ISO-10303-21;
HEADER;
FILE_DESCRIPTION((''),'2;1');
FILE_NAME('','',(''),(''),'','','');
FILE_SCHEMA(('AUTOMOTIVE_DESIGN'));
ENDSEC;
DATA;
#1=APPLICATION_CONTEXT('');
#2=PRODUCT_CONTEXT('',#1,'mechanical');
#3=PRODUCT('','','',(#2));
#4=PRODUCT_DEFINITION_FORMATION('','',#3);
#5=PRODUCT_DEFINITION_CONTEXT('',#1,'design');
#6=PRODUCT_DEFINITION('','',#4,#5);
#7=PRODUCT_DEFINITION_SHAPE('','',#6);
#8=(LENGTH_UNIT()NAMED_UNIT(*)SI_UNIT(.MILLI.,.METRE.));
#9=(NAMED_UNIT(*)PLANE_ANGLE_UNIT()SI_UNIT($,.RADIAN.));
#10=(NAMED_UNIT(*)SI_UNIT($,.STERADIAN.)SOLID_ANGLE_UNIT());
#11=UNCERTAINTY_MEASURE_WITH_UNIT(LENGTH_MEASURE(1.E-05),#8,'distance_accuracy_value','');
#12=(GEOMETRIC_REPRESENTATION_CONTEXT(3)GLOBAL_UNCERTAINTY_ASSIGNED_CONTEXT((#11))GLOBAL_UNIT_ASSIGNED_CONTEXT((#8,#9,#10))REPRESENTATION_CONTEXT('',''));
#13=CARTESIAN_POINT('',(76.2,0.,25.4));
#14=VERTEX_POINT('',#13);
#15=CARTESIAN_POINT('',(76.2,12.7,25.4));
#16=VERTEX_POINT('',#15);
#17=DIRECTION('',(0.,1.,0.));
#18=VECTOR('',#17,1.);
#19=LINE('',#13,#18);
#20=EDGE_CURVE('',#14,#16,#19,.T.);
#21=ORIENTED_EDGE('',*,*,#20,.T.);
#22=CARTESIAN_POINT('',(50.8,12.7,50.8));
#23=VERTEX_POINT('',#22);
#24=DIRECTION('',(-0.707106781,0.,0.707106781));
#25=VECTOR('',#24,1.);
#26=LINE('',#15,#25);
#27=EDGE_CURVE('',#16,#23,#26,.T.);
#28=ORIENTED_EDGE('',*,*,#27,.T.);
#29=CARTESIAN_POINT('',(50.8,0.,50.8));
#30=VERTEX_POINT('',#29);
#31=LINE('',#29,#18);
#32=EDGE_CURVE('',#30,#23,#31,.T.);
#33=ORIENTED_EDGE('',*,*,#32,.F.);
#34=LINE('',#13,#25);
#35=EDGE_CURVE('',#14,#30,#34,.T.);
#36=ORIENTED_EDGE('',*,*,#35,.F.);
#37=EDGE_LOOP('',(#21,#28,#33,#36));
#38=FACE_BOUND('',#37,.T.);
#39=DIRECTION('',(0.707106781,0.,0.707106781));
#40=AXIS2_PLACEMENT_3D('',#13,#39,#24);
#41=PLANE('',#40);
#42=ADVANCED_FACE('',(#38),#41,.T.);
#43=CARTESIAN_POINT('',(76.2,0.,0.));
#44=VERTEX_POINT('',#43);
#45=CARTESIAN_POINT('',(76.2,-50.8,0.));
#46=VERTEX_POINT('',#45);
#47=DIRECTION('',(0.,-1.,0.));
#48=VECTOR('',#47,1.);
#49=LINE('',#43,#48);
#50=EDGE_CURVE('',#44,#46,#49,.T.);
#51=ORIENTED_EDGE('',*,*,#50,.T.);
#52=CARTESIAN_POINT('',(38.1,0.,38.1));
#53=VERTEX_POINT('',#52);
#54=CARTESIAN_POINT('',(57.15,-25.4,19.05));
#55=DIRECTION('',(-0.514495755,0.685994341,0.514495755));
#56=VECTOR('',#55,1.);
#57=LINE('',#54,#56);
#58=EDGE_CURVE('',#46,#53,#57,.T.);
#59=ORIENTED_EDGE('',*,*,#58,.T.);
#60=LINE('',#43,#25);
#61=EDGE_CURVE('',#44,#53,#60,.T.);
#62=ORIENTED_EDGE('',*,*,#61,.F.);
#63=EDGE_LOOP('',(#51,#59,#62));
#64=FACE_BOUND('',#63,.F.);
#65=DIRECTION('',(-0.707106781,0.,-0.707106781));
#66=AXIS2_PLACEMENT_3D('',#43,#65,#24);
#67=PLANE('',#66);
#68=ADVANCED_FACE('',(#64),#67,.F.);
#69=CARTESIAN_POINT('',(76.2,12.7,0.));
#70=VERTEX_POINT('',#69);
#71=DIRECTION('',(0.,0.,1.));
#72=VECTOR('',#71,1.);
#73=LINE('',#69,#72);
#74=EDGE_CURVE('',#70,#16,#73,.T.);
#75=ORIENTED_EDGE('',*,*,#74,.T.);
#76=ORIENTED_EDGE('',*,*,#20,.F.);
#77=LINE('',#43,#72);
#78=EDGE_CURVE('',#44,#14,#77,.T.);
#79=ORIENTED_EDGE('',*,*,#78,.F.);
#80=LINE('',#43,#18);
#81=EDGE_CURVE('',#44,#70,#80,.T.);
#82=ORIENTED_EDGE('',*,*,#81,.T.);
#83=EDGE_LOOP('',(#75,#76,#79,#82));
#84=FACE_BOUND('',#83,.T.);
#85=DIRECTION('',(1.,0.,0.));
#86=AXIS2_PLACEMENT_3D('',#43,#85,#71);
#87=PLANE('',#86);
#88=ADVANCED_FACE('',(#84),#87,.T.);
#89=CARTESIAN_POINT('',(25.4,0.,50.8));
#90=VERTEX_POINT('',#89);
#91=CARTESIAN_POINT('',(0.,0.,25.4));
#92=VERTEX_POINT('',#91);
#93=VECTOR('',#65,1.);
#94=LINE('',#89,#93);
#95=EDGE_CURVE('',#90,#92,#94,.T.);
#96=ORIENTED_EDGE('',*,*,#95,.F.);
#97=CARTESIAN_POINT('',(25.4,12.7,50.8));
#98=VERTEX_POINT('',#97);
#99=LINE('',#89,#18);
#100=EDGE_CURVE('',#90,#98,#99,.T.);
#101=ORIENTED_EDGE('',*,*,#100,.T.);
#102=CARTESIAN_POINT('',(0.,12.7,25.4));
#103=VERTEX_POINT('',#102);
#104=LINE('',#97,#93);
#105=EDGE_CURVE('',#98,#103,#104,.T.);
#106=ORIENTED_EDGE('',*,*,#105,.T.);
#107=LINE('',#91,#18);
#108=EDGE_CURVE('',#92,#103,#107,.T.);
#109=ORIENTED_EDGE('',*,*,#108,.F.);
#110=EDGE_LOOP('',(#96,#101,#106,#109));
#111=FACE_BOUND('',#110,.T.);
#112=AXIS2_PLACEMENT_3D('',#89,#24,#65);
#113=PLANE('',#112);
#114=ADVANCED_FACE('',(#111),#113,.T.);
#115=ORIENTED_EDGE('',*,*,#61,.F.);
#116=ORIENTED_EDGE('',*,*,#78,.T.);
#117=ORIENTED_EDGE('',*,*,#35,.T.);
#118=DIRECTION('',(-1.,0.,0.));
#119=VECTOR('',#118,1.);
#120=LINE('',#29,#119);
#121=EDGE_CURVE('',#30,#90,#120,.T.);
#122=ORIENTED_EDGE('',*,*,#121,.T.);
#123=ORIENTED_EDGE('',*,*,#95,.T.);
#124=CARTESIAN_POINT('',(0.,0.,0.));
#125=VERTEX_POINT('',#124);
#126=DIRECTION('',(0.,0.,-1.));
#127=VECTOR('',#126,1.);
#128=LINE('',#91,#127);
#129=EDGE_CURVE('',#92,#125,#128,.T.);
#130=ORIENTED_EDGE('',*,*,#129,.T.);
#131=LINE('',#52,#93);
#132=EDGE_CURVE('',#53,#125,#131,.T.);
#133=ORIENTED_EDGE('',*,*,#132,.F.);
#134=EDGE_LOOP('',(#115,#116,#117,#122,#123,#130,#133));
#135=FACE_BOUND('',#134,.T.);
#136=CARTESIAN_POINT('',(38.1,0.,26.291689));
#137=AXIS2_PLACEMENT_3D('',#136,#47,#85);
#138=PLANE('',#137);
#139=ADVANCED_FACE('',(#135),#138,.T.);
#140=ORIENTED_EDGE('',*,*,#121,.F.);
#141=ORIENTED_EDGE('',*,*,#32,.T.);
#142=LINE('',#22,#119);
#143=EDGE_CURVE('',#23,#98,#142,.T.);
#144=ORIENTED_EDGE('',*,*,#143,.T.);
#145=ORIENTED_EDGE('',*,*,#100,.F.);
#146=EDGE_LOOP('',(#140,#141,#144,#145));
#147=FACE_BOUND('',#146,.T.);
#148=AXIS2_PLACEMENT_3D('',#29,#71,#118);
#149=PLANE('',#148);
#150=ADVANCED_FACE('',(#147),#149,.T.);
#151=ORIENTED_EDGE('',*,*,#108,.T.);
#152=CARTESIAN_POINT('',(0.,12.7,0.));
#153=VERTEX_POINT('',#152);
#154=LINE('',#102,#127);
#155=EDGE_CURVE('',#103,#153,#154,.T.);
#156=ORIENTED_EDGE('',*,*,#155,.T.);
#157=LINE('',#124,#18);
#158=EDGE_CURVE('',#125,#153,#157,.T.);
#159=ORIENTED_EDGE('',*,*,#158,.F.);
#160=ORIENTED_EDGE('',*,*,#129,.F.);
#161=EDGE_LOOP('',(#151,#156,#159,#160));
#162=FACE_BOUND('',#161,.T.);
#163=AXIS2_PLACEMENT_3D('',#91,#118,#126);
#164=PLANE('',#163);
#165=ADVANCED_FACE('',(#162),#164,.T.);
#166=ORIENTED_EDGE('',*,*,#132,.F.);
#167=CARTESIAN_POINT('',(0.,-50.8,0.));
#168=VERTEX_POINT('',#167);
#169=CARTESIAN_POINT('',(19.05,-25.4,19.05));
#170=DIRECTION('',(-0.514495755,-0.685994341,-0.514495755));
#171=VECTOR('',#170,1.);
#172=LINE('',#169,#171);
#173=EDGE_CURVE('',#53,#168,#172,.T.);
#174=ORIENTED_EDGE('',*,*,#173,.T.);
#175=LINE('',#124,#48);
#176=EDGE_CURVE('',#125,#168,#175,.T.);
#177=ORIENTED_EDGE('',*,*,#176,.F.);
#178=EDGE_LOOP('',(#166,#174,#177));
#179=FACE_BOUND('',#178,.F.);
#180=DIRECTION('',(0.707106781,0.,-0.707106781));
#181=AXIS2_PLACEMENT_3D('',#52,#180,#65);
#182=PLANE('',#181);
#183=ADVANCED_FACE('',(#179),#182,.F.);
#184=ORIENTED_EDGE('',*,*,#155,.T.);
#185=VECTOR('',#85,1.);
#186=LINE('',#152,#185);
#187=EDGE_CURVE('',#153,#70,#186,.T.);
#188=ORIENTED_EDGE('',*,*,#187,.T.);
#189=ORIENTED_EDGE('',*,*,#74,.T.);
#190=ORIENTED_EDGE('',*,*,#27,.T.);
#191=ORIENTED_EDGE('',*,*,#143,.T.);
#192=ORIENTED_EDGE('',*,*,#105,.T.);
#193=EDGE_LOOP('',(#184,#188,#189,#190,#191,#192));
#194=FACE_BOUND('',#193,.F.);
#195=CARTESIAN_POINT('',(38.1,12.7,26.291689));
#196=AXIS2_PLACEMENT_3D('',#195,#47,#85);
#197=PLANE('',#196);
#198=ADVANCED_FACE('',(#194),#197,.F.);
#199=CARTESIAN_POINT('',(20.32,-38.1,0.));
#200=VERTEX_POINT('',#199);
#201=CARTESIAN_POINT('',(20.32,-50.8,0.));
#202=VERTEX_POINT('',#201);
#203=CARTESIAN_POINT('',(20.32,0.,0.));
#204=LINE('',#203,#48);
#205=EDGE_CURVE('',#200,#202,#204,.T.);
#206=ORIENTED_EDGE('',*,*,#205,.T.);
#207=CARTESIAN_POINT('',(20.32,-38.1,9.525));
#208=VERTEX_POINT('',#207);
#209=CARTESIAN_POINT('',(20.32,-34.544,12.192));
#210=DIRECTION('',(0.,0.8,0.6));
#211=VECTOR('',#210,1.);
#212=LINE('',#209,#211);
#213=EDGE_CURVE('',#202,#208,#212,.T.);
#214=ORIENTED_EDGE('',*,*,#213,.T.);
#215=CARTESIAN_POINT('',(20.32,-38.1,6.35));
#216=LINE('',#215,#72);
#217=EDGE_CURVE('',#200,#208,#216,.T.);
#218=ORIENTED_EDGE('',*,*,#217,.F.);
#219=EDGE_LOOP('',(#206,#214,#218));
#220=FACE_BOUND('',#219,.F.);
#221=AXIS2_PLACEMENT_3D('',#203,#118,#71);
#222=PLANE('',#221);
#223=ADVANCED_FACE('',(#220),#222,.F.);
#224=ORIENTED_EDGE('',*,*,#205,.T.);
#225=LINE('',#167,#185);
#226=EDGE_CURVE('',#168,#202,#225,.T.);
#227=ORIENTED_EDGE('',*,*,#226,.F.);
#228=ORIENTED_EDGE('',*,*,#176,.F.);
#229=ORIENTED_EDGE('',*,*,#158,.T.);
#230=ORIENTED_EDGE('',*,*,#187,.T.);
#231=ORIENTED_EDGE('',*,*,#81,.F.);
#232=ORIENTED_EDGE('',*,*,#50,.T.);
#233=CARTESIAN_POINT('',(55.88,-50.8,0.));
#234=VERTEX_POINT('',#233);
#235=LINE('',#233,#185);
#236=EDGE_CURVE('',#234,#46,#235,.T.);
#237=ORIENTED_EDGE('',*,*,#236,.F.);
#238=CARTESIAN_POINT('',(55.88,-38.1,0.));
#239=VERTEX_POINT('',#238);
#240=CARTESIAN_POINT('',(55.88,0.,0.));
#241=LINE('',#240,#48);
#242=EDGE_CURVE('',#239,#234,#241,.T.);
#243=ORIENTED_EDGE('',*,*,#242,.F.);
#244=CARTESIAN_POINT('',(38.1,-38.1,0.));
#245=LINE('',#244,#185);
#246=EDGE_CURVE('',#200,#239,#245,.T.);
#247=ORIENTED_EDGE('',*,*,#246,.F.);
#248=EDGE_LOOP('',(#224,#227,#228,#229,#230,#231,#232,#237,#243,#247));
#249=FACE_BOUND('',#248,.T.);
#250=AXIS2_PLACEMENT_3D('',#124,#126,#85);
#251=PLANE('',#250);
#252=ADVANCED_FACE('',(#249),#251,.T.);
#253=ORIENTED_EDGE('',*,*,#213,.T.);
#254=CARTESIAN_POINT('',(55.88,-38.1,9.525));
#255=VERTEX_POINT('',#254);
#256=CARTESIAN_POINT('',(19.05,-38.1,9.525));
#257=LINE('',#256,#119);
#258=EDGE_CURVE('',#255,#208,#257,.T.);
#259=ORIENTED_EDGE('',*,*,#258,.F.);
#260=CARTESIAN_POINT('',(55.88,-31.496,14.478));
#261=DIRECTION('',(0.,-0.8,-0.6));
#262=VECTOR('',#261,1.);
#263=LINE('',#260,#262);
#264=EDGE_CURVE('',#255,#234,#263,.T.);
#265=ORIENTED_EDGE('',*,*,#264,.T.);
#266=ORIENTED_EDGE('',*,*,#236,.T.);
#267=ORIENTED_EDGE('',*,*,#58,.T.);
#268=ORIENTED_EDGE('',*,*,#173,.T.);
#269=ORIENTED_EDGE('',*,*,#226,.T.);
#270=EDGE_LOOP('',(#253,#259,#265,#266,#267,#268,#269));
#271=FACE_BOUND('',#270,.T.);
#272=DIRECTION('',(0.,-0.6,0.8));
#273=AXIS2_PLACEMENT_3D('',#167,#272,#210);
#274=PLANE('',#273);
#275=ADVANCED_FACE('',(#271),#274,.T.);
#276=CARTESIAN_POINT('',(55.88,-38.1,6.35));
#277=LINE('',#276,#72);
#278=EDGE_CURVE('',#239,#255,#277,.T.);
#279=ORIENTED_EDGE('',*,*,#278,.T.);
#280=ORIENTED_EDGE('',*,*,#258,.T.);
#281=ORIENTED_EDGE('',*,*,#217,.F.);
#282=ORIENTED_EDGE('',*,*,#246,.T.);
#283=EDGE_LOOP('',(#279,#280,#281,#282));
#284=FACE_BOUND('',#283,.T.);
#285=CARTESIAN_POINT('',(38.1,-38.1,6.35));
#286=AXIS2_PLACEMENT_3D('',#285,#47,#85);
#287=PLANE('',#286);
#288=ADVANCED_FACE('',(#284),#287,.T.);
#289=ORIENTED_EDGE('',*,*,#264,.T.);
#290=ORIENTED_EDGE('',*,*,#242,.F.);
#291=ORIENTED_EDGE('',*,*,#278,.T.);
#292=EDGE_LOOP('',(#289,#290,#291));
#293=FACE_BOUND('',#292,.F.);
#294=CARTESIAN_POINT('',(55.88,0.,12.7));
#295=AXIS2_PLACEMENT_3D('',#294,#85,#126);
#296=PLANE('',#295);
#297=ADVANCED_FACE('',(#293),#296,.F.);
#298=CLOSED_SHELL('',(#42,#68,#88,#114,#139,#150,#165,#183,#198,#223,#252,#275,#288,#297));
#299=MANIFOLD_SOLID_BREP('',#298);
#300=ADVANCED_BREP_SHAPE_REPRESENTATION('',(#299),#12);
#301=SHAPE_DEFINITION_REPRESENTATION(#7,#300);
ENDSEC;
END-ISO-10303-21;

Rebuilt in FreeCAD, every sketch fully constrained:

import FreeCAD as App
import Part
import Sketcher
from FreeCAD import Vector
Q = App.Units.Quantity


def add_polygon(sketch, points):
    """Adds a closed chain of lines whose ends are joined by coincident constraints."""
    first, n = sketch.GeometryCount, len(points)
    for a, b in zip(points, points[1:] + points[:1]):
        sketch.addGeometry(Part.LineSegment(App.Vector(*a, 0), App.Vector(*b, 0)), False)
    for i in range(n):
        sketch.addConstraint(Sketcher.Constraint("Coincident", first + i, 2, first + (i + 1) % n, 1))

doc = App.newDocument("Part")
body = doc.addObject("PartDesign::Body", "Body")
body.AllowCompound = True

# Sketch on XZ plane
sketch1 = body.newObject("Sketcher::SketchObject", "Sketch")
sketch1.AttachmentSupport = (doc.getObject("XZ_Plane"), [""])
sketch1.MapMode = "FlatFace"
add_polygon(sketch1, [(20.32, 12.7), (20.32, 0), (55.88, 0), (55.88, 12.7)])  # lines 0-3
sketch1.addConstraint([
    Sketcher.Constraint("Vertical", 0),
    Sketcher.Constraint("Horizontal", 1),
    Sketcher.Constraint("Vertical", 2),
    Sketcher.Constraint("Horizontal", 3),
    Sketcher.Constraint("PointOnObject", 0, 2, -1),
    Sketcher.Constraint("DistanceX", 1, 1, 1, 2, Q("1.4 in")),
    Sketcher.Constraint("DistanceY", 0, 2, 0, 1, Q("0.5 in")),
    Sketcher.Constraint("DistanceX", -1, 1, 0, 2, Q("0.8 in")),
])
pad1 = body.newObject("PartDesign::Pad", "Pad")
pad1.Profile = sketch1
pad1.Length = Q("1.5 in")

# Sketch on XZ plane
sketch2 = body.newObject("Sketcher::SketchObject", "Sketch001")
sketch2.AttachmentSupport = (doc.getObject("XZ_Plane"), [""])
sketch2.MapMode = "FlatFace"
add_polygon(sketch2, [(38.1, 38.1), (0, 0), (20.32, 0), (20.32, 12.7), (55.88, 12.7), (55.88, 0), (76.2, 0)])  # lines 0-6
sketch2.addConstraint([
    Sketcher.Constraint("Horizontal", 1),
    Sketcher.Constraint("Vertical", 2),
    Sketcher.Constraint("Horizontal", 3),
    Sketcher.Constraint("Vertical", 4),
    Sketcher.Constraint("Horizontal", 5),
    Sketcher.Constraint("Coincident", 0, 2, -1, 1),
    Sketcher.Constraint("PointOnObject", 4, 2, -1),
    Sketcher.Constraint("Perpendicular", 0, 6),
    Sketcher.Constraint("Equal", 1, 5),
    Sketcher.Constraint("Equal", 0, 6),
    Sketcher.Constraint("DistanceX", 1, 1, 1, 2, Q("0.8 in")),
    Sketcher.Constraint("DistanceX", 3, 1, 3, 2, Q("1.4 in")),
    Sketcher.Constraint("DistanceY", 2, 1, 2, 2, Q("0.5 in")),
])
pad2 = body.newObject("PartDesign::Pad", "Pad001")
pad2.Profile = sketch2
pad2.Length = Q("2 in")

# Sketch on YZ plane
sketch3 = body.newObject("Sketcher::SketchObject", "Sketch002")
sketch3.AttachmentSupport = (doc.getObject("YZ_Plane"), [""])
sketch3.MapMode = "FlatFace"
add_polygon(sketch3, [(-50.8, 0), (0, 38.1), (-50.8, 38.1)])  # lines 0-2
sketch3.addConstraint([
    Sketcher.Constraint("Horizontal", 1),
    Sketcher.Constraint("Vertical", 2),
    Sketcher.Constraint("PointOnObject", 0, 2, -2),
    Sketcher.Constraint("PointOnObject", 2, 2, -1),
    Sketcher.Constraint("DistanceX", 1, 2, 1, 1, Q("2 in")),
    Sketcher.Constraint("DistanceY", 2, 2, 2, 1, Q("1.5 in")),
])
pocket1 = body.newObject("PartDesign::Pocket", "Pocket")
pocket1.Profile = sketch3
pocket1.Type = "ThroughAll"
pocket1.Reversed = True

# Sketch on XZ plane
sketch4 = body.newObject("Sketcher::SketchObject", "Sketch003")
sketch4.AttachmentSupport = (doc.getObject("XZ_Plane"), [""])
sketch4.MapMode = "FlatFace"
add_polygon(sketch4, [(0, 25.4), (0, 0), (38.1, 38.1), (76.2, 0), (76.2, 25.4), (50.8, 50.8), (25.4, 50.8)])  # lines 0-6
sketch4.addConstraint([
    Sketcher.Constraint("Vertical", 0),
    Sketcher.Constraint("Vertical", 3),
    Sketcher.Constraint("Horizontal", 5),
    Sketcher.Constraint("Coincident", 0, 2, -1, 1),
    Sketcher.Constraint("PointOnObject", 2, 2, -1),
    Sketcher.Constraint("Perpendicular", 1, 2),
    Sketcher.Constraint("Parallel", 2, 4),
    Sketcher.Constraint("Perpendicular", 4, 6),
    Sketcher.Constraint("Horizontal", 3, 2, 6, 2),
    Sketcher.Constraint("Equal", 5, 0),
    Sketcher.Constraint("Equal", 1, 2),
    Sketcher.Constraint("DistanceX", 5, 2, 5, 1, Q("1 in")),
    Sketcher.Constraint("DistanceX", -1, 1, 2, 2, Q("3 in")),
])
pad3 = body.newObject("PartDesign::Pad", "Pad002")
pad3.Profile = sketch4
pad3.Length = Q("0.5 in")
pad3.Reversed = True

# Sketch on XZ plane
sketch5 = body.newObject("Sketcher::SketchObject", "Sketch004")
sketch5.AttachmentSupport = (doc.getObject("XZ_Plane"), [""])
sketch5.MapMode = "FlatFace"
add_polygon(sketch5, [(76.2, 0), (76.2, 25.4), (50.8, 50.8), (25.4, 50.8), (0, 25.4), (0, 0)])  # lines 0-5
sketch5.addConstraint([
    Sketcher.Constraint("Vertical", 0),
    Sketcher.Constraint("Horizontal", 2),
    Sketcher.Constraint("Vertical", 4),
    Sketcher.Constraint("Horizontal", 5),
    Sketcher.Constraint("Coincident", 4, 2, -1, 1),
    Sketcher.Constraint("Perpendicular", 1, 3),
    Sketcher.Constraint("Horizontal", 0, 2, 3, 2),
    Sketcher.Constraint("Equal", 2, 0),
    Sketcher.Constraint("Equal", 1, 3),
    Sketcher.Constraint("DistanceX", 2, 2, 2, 1, Q("1 in")),
    Sketcher.Constraint("DistanceX", 5, 1, 5, 2, Q("3 in")),
])
pad4 = body.newObject("PartDesign::Pad", "Pad003")
pad4.Profile = sketch5
pad4.Length = Q("0.5 in")
pad4.Reversed = True

doc.recompute()
